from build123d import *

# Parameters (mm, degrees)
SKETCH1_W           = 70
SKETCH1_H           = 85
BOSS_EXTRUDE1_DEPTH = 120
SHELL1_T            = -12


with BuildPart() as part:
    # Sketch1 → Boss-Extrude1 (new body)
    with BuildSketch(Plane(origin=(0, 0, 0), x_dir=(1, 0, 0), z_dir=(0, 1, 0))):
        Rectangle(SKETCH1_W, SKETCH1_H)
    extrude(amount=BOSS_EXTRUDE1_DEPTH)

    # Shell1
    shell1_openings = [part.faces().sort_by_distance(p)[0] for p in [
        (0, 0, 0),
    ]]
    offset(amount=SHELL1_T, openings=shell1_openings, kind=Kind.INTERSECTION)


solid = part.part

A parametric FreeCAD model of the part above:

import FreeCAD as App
import Part
import Sketcher
Q = App.Units.Quantity


def faces_at(feature, points):
    """Names of the faces that lie closest to the given points."""
    faces = feature.Shape.Faces
    near = lambda p: min(range(len(faces)), key=lambda i: faces[i].distToShape(Part.Vertex(*p))[0])
    return sorted({f"Face{near(p) + 1}" for p in points})


def add_polygon(sketch, points):
    """Adds a closed chain of lines whose ends are joined by coincident constraints."""
    first, n = sketch.GeometryCount, len(points)
    for a, b in zip(points, points[1:] + points[:1]):
        sketch.addGeometry(Part.LineSegment(App.Vector(*a, 0), App.Vector(*b, 0)), False)
    for i in range(n):
        sketch.addConstraint(Sketcher.Constraint("Coincident", first + i, 2, first + (i + 1) % n, 1))

doc = App.newDocument("Part")
params = doc.addObject("Spreadsheet::Sheet", "Params")
for row, (alias, value) in enumerate([
    ("sketch1_width", "70 mm"),
    ("sketch1_height", "85 mm"),
    ("pad1_length", "120 mm"),
    ("thickness_wall", "12 mm"),
], start=1):
    params.set(f"A{row}", alias)
    params.set(f"B{row}", "=" + value)
    params.setAlias(f"B{row}", alias)

body = doc.addObject("PartDesign::Body", "Body")

# Sketch on XZ plane
sketch1 = body.newObject("Sketcher::SketchObject", "Sketch")
sketch1.AttachmentSupport = (doc.getObject("XZ_Plane"), [""])
sketch1.MapMode = "FlatFace"
add_polygon(sketch1, [(-35, -42.5), (-35, 42.5), (35, 42.5), (35, -42.5)])  # lines 0-3
sketch1.addConstraint([
    Sketcher.Constraint("Vertical", 0),
    Sketcher.Constraint("Horizontal", 1),
    Sketcher.Constraint("Vertical", 2),
    Sketcher.Constraint("Horizontal", 3),
    Sketcher.Constraint("Symmetric", 0, 2, 2, 2, -1, 1),
    Sketcher.Constraint("DistanceX", 1, 1, 1, 2, Q("70 mm")),
    Sketcher.Constraint("DistanceY", 0, 1, 0, 2, Q("85 mm")),
])
sketch1.setExpression("Constraints[9]", "Params.sketch1_width")
sketch1.setExpression("Constraints[10]", "Params.sketch1_height")
pad1 = body.newObject("PartDesign::Pad", "Pad")
pad1.Profile = sketch1
pad1.setExpression("Length", "Params.pad1_length")
pad1.Reversed = True
doc.recompute()

thickness = body.newObject("PartDesign::Thickness", "Thickness")
thickness.Base = (pad1, faces_at(pad1, [(0, 0, 0)]))
thickness.setExpression("Value", "Params.thickness_wall")
thickness.Reversed = True
thickness.Join = "Intersection"

doc.recompute()
